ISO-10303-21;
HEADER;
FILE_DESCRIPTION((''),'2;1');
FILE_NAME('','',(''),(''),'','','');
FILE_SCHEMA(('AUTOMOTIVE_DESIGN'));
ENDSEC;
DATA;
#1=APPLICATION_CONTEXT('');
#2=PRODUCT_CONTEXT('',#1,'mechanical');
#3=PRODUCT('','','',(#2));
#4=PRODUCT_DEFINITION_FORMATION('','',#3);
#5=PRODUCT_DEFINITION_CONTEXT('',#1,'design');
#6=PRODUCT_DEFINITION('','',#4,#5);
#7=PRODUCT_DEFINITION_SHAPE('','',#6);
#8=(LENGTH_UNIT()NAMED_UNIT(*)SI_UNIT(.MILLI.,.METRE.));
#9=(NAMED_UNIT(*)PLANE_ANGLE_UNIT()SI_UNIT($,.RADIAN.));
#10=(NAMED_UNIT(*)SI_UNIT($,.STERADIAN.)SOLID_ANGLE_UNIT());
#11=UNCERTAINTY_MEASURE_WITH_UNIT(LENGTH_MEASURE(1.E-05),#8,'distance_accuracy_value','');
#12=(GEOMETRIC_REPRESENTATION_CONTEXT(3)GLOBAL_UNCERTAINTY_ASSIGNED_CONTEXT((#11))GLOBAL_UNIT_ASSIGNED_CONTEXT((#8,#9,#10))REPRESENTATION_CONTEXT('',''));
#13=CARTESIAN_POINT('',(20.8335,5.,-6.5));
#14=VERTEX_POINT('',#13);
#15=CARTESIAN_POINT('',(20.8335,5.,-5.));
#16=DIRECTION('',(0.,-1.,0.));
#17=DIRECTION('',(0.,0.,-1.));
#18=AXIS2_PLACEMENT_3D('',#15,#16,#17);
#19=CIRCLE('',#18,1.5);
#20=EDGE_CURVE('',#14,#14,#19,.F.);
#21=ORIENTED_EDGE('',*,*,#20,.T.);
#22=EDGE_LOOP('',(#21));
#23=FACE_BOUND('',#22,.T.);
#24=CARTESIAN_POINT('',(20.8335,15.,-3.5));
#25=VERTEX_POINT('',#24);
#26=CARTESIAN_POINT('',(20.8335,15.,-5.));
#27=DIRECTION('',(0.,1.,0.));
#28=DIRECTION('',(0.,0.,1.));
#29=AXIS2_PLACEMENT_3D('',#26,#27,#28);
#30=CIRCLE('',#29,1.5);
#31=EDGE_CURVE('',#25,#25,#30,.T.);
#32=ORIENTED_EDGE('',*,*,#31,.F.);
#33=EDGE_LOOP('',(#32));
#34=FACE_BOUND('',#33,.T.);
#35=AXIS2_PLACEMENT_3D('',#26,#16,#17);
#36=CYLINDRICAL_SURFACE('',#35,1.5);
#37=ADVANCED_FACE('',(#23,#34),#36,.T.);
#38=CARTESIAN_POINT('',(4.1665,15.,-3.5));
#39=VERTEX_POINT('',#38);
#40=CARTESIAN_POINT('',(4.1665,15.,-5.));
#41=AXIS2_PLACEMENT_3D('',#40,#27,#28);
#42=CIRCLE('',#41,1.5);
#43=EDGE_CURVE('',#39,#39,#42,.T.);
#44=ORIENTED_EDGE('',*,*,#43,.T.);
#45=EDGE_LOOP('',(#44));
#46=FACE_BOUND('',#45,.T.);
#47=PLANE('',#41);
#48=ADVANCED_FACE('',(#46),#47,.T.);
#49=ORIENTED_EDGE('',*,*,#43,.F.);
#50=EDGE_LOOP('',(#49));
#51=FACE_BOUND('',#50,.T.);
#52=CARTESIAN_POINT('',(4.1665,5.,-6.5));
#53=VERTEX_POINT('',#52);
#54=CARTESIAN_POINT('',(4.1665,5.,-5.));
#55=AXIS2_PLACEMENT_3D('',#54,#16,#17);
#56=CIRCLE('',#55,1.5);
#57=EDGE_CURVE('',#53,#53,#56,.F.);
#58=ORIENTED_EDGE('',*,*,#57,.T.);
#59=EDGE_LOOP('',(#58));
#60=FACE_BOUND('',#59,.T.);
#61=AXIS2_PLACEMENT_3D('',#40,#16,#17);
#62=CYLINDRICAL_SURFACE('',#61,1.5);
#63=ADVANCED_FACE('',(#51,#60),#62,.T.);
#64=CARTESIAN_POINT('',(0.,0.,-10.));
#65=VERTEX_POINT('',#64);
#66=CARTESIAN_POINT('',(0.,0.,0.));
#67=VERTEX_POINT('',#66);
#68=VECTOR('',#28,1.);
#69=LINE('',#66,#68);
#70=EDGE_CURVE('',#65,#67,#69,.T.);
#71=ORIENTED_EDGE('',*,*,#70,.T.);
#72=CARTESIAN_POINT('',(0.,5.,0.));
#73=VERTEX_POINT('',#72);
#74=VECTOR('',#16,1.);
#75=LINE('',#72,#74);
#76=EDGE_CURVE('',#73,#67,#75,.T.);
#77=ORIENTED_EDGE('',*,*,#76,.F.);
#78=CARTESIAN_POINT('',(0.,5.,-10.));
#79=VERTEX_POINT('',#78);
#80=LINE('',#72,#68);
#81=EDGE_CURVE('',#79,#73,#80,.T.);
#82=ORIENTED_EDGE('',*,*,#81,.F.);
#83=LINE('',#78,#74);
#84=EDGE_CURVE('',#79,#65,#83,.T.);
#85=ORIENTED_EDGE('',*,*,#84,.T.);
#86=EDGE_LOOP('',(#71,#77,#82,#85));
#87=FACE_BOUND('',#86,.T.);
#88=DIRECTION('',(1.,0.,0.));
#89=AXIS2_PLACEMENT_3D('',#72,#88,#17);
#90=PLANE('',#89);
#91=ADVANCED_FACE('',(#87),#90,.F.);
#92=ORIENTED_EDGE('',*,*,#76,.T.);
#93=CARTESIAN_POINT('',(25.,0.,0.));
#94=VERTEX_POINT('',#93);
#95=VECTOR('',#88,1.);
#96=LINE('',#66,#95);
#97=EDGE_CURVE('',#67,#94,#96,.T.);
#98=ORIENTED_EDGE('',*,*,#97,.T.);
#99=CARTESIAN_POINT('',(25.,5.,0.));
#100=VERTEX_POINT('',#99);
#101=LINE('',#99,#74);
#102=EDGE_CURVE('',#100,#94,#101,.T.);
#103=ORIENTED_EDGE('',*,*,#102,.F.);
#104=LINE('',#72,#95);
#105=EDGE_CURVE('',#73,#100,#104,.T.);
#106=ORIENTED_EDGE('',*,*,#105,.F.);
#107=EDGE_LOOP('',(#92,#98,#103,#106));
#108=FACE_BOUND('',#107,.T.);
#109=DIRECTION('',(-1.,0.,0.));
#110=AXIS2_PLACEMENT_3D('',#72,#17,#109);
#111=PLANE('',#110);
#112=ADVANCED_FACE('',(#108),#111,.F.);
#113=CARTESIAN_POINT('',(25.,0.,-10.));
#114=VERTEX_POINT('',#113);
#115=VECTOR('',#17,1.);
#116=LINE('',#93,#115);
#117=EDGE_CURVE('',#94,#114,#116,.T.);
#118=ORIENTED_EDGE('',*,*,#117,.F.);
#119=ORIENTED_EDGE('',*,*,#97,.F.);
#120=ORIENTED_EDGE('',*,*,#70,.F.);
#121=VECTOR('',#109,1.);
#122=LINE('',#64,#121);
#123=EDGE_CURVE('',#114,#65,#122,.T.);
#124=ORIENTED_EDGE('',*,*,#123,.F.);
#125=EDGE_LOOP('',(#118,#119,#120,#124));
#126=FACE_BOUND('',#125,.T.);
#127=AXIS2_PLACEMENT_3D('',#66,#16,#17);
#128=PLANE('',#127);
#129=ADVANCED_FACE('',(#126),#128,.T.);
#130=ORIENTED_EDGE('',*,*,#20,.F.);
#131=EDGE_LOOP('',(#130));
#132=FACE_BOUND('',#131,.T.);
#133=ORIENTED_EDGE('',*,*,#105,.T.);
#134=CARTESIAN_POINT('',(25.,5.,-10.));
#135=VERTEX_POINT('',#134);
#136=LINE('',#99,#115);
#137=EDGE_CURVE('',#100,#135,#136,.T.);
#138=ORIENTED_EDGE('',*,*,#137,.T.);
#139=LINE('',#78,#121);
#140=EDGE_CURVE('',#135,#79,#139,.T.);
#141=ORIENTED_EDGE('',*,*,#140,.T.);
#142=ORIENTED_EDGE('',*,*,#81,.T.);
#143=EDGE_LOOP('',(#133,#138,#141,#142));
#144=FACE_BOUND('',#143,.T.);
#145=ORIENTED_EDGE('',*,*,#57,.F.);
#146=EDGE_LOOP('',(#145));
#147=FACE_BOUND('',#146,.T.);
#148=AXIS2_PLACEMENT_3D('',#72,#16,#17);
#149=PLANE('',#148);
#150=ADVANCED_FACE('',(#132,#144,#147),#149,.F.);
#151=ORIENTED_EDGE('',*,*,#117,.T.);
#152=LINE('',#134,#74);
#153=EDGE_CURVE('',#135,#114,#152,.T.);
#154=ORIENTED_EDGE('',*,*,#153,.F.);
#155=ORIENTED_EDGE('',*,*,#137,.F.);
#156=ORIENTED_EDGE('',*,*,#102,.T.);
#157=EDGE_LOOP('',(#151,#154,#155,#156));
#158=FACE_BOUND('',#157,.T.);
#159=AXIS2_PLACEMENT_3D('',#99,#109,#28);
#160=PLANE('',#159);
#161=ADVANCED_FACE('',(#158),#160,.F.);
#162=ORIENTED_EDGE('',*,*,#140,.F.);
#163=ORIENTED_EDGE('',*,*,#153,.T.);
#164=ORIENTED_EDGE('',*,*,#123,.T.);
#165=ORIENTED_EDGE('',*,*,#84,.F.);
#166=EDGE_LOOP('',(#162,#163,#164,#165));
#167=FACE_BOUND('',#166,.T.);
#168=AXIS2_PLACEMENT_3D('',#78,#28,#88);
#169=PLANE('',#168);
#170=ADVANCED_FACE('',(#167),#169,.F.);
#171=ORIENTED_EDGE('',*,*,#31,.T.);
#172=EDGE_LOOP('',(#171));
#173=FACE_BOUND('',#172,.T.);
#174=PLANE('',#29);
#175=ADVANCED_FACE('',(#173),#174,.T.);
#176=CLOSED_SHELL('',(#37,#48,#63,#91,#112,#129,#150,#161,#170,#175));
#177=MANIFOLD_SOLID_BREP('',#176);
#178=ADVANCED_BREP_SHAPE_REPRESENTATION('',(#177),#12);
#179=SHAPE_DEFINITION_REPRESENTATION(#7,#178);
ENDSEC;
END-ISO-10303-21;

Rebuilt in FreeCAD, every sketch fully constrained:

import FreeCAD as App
import Part
import Sketcher

V = App.Vector


def add_polygon(sketch, points):
    """Adds a closed chain of lines whose ends are joined by coincident constraints."""
    first, n = sketch.GeometryCount, len(points)
    for a, b in zip(points, points[1:] + points[:1]):
        sketch.addGeometry(Part.LineSegment(App.Vector(*a, 0), App.Vector(*b, 0)), False)
    for i in range(n):
        sketch.addConstraint(Sketcher.Constraint("Coincident", first + i, 2, first + (i + 1) % n, 1))

doc = App.newDocument("Part")
body = doc.addObject("PartDesign::Body", "Body")

# Sketch on XZ plane
sketch1 = body.newObject("Sketcher::SketchObject", "Sketch")
sketch1.AttachmentSupport = (doc.getObject("XZ_Plane"), [""])
sketch1.MapMode = "FlatFace"
add_polygon(sketch1, [(0, -10), (0, 0), (25, 0), (25, -10)])  # lines 0-3
sketch1.addConstraint([
    Sketcher.Constraint("Vertical", 0),
    Sketcher.Constraint("Horizontal", 1),
    Sketcher.Constraint("Vertical", 2),
    Sketcher.Constraint("Horizontal", 3),
    Sketcher.Constraint("Coincident", 0, 2, -1, 1),
    Sketcher.Constraint("DistanceX", 1, 1, 1, 2, 25.0),
    Sketcher.Constraint("DistanceY", 0, 1, 0, 2, 10.0),
])
pad1 = body.newObject("PartDesign::Pad", "Pad")
pad1.Profile = sketch1
pad1.Length = 5
pad1.Reversed = True

# Sketch on XZ plane
sketch2 = body.newObject("Sketcher::SketchObject", "Sketch001")
sketch2.AttachmentSupport = (doc.getObject("XZ_Plane"), [""])
sketch2.MapMode = "FlatFace"
sketch2.AttachmentOffset = App.Placement(V(0, 0, -5), App.Rotation())
sketch2.addGeometry([
    Part.Circle(V(4.1665, -5, 0), V(0, 0, 1), 1.5),
    Part.Circle(V(20.8335, -5, 0), V(0, 0, 1), 1.5),
], False)
sketch2.addConstraint([
    Sketcher.Constraint("Equal", 0, 1),
    Sketcher.Constraint("Horizontal", 0, 3, 1, 3),
    Sketcher.Constraint("Diameter", 0, 3.0),
    Sketcher.Constraint("DistanceY", 0, 3, -1, 1, 5.0),
    Sketcher.Constraint("DistanceX", 0, 3, 1, 3, 16.667),
    Sketcher.Constraint("DistanceX", -1, 1, 0, 3, 4.1665),
])
pad2 = body.newObject("PartDesign::Pad", "Pad001")
pad2.Profile = sketch2
pad2.Length = 10
pad2.Reversed = True

doc.recompute()
